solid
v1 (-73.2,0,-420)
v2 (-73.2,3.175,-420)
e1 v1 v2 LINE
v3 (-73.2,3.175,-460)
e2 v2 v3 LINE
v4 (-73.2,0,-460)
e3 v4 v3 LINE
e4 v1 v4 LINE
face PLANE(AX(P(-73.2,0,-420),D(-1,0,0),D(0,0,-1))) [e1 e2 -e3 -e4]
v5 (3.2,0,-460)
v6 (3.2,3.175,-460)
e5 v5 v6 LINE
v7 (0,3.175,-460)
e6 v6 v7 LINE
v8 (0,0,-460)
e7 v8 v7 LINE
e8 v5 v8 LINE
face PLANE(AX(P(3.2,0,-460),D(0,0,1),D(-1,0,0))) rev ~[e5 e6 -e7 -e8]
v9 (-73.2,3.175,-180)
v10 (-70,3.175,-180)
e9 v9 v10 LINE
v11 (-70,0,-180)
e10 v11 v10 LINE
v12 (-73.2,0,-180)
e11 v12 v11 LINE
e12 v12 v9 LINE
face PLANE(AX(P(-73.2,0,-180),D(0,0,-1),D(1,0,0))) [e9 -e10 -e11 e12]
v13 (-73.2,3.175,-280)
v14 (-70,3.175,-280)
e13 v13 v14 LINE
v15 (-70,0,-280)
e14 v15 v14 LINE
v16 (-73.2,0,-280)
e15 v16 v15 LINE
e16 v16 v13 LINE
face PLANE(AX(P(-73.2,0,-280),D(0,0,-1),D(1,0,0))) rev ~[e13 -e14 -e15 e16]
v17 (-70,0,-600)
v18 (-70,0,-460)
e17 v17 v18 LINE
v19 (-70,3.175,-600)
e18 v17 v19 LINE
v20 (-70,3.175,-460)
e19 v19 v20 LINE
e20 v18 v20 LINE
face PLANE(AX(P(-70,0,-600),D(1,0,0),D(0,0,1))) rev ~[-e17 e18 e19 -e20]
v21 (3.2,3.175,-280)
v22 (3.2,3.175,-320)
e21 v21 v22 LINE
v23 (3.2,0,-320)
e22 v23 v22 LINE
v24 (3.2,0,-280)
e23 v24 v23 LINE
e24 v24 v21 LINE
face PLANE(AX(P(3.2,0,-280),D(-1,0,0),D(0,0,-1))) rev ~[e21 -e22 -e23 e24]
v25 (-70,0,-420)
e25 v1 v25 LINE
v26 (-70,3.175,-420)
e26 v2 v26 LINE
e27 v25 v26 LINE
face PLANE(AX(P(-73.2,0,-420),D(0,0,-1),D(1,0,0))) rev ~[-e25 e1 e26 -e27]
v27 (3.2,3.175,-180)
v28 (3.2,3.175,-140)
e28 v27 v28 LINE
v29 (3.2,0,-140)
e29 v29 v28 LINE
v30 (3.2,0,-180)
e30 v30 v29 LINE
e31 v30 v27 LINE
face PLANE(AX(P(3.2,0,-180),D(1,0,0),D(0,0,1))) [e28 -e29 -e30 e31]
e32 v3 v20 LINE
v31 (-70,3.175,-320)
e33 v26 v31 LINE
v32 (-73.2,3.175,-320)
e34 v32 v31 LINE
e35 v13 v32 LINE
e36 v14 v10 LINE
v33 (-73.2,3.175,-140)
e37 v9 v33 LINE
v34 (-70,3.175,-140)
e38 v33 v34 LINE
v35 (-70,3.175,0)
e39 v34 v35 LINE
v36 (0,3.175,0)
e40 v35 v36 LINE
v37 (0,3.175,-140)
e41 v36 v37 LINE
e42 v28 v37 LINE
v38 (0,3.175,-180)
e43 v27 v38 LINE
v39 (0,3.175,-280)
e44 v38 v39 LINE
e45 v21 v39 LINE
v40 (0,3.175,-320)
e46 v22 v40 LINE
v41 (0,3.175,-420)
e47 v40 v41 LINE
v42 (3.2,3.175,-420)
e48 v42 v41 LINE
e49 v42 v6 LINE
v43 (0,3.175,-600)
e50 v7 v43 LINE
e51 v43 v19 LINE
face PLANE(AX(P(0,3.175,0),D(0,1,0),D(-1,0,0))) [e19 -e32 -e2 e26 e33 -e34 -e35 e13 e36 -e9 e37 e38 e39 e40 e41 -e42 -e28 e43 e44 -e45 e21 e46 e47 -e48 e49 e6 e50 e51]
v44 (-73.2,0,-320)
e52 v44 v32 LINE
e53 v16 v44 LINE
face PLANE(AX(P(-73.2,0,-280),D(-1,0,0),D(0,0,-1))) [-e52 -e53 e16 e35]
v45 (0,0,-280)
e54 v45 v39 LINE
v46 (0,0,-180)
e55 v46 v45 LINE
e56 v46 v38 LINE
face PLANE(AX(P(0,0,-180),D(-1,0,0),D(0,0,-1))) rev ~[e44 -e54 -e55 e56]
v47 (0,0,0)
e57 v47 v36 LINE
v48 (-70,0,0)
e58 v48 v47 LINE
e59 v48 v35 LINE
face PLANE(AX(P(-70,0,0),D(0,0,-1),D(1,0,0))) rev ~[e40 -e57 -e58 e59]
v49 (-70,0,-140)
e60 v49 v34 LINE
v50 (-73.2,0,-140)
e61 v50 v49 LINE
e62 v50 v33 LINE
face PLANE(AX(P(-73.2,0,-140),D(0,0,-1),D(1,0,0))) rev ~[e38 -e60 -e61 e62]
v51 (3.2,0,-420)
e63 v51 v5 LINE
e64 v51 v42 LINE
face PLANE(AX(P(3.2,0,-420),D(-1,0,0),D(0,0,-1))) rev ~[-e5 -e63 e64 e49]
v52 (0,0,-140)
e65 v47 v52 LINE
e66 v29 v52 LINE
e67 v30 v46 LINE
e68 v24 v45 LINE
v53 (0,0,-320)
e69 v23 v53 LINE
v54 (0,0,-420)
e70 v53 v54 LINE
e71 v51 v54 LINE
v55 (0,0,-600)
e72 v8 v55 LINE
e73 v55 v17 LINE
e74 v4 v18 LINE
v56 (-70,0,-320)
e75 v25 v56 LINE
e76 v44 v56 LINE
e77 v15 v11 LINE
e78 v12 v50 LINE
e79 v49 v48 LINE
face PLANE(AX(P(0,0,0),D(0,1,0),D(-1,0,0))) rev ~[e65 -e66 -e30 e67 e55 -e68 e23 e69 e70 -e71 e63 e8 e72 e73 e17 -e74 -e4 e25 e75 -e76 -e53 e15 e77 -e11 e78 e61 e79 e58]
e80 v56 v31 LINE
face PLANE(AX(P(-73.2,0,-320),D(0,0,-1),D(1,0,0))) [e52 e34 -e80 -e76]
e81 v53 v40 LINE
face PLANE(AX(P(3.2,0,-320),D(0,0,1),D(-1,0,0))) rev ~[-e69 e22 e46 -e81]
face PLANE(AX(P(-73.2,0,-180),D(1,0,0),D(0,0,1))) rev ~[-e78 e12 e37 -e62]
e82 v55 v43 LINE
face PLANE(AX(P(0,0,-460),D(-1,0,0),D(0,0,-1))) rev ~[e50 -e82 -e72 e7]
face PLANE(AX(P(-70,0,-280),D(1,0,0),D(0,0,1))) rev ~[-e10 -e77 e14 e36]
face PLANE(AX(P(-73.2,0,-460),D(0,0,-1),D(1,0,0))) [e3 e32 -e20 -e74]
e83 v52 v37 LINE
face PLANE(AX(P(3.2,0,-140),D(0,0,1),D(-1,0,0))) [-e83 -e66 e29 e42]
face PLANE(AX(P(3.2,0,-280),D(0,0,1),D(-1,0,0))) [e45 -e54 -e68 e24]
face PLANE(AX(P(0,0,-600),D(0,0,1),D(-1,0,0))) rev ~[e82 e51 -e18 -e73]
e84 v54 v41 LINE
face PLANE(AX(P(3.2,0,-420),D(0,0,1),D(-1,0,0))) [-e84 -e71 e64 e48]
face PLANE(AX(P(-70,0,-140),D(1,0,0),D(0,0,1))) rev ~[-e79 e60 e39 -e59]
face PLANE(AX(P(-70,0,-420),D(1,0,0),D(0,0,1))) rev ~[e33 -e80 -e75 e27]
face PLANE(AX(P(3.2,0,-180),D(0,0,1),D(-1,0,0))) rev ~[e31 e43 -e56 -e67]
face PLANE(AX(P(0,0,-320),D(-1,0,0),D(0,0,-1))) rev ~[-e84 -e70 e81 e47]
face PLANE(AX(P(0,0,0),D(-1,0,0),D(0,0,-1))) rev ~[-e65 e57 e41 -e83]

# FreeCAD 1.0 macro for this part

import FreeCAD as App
import Part
import Sketcher

V = App.Vector
Q = App.Units.Quantity

doc = App.newDocument("Part")
body = doc.addObject("PartDesign::Body", "Body")

# Sketch on XZ plane
sketch1 = doc.addObject("Sketcher::SketchObject", "Sketch")
body.addObject(sketch1)
sketch1.AttachmentSupport = (doc.XZ_Plane, [""])
sketch1.MapMode = "FlatFace"
sketch1.addGeometry([
    Part.LineSegment(V(-70, 0, 0), V(0, 0, 0)),  # 0
    Part.LineSegment(V(0, 0, 0), V(0, -140, 0)),  # 1
    Part.LineSegment(V(0, -140, 0), V(3.2, -140, 0)),  # 2
    Part.LineSegment(V(3.2, -140, 0), V(3.2, -180, 0)),  # 3
    Part.LineSegment(V(3.2, -180, 0), V(0, -180, 0)),  # 4
    Part.LineSegment(V(0, -180, 0), V(0, -280, 0)),  # 5
    Part.LineSegment(V(0, -280, 0), V(3.2, -280, 0)),  # 6
    Part.LineSegment(V(3.2, -280, 0), V(3.2, -320, 0)),  # 7
    Part.LineSegment(V(3.2, -320, 0), V(0, -320, 0)),  # 8
    Part.LineSegment(V(0, -320, 0), V(0, -420, 0)),  # 9
    Part.LineSegment(V(0, -420, 0), V(3.2, -420, 0)),  # 10
    Part.LineSegment(V(3.2, -420, 0), V(3.2, -460, 0)),  # 11
    Part.LineSegment(V(3.2, -460, 0), V(0, -460, 0)),  # 12
    Part.LineSegment(V(0, -460, 0), V(0, -600, 0)),  # 13
    Part.LineSegment(V(0, -600, 0), V(-70, -600, 0)),  # 14
    Part.LineSegment(V(-70, -600, 0), V(-70, -460, 0)),  # 15
    Part.LineSegment(V(-70, -460, 0), V(-73.2, -460, 0)),  # 16
    Part.LineSegment(V(-73.2, -460, 0), V(-73.2, -420, 0)),  # 17
    Part.LineSegment(V(-73.2, -420, 0), V(-70, -420, 0)),  # 18
    Part.LineSegment(V(-70, -420, 0), V(-70, -320, 0)),  # 19
    Part.LineSegment(V(-70, -320, 0), V(-73.2, -320, 0)),  # 20
    Part.LineSegment(V(-73.2, -320, 0), V(-73.2, -280, 0)),  # 21
    Part.LineSegment(V(-73.2, -280, 0), V(-70, -280, 0)),  # 22
    Part.LineSegment(V(-70, -280, 0), V(-70, -180, 0)),  # 23
    Part.LineSegment(V(-70, -180, 0), V(-73.2, -180, 0)),  # 24
    Part.LineSegment(V(-73.2, -180, 0), V(-73.2, -140, 0)),  # 25
    Part.LineSegment(V(-73.2, -140, 0), V(-70, -140, 0)),  # 26
    Part.LineSegment(V(-70, -140, 0), V(-70, 0, 0)),  # 27
], False)
sketch1.addConstraint([
    Sketcher.Constraint("Coincident", 0, 2, 1, 1),
    Sketcher.Constraint("Coincident", 1, 2, 2, 1),
    Sketcher.Constraint("Coincident", 2, 2, 3, 1),
    Sketcher.Constraint("Coincident", 3, 2, 4, 1),
    Sketcher.Constraint("Coincident", 4, 2, 5, 1),
    Sketcher.Constraint("Coincident", 5, 2, 6, 1),
    Sketcher.Constraint("Coincident", 6, 2, 7, 1),
    Sketcher.Constraint("Coincident", 7, 2, 8, 1),
    Sketcher.Constraint("Coincident", 8, 2, 9, 1),
    Sketcher.Constraint("Coincident", 9, 2, 10, 1),
    Sketcher.Constraint("Coincident", 10, 2, 11, 1),
    Sketcher.Constraint("Coincident", 11, 2, 12, 1),
    Sketcher.Constraint("Coincident", 12, 2, 13, 1),
    Sketcher.Constraint("Coincident", 13, 2, 14, 1),
    Sketcher.Constraint("Coincident", 14, 2, 15, 1),
    Sketcher.Constraint("Coincident", 15, 2, 16, 1),
    Sketcher.Constraint("Coincident", 16, 2, 17, 1),
    Sketcher.Constraint("Coincident", 17, 2, 18, 1),
    Sketcher.Constraint("Coincident", 18, 2, 19, 1),
    Sketcher.Constraint("Coincident", 19, 2, 20, 1),
    Sketcher.Constraint("Coincident", 20, 2, 21, 1),
    Sketcher.Constraint("Coincident", 21, 2, 22, 1),
    Sketcher.Constraint("Coincident", 22, 2, 23, 1),
    Sketcher.Constraint("Coincident", 23, 2, 24, 1),
    Sketcher.Constraint("Coincident", 24, 2, 25, 1),
    Sketcher.Constraint("Coincident", 25, 2, 26, 1),
    Sketcher.Constraint("Coincident", 26, 2, 27, 1),
    Sketcher.Constraint("Coincident", 27, 2, 0, 1),
    Sketcher.Constraint("Horizontal", 0),
    Sketcher.Constraint("Vertical", 1),
    Sketcher.Constraint("Horizontal", 2),
    Sketcher.Constraint("Vertical", 3),
    Sketcher.Constraint("Horizontal", 4),
    Sketcher.Constraint("Vertical", 5),
    Sketcher.Constraint("Horizontal", 6),
    Sketcher.Constraint("Vertical", 7),
    Sketcher.Constraint("Horizontal", 8),
    Sketcher.Constraint("Vertical", 9),
    Sketcher.Constraint("Horizontal", 10),
    Sketcher.Constraint("Vertical", 11),
    Sketcher.Constraint("Horizontal", 12),
    Sketcher.Constraint("Vertical", 13),
    Sketcher.Constraint("Horizontal", 14),
    Sketcher.Constraint("Vertical", 15),
    Sketcher.Constraint("Horizontal", 16),
    Sketcher.Constraint("Vertical", 17),
    Sketcher.Constraint("Horizontal", 18),
    Sketcher.Constraint("Vertical", 19),
    Sketcher.Constraint("Horizontal", 20),
    Sketcher.Constraint("Vertical", 21),
    Sketcher.Constraint("Horizontal", 22),
    Sketcher.Constraint("Vertical", 23),
    Sketcher.Constraint("Horizontal", 24),
    Sketcher.Constraint("Vertical", 25),
    Sketcher.Constraint("Horizontal", 26),
    Sketcher.Constraint("Vertical", 27),
    Sketcher.Constraint("Coincident", 0, 2, -1, 1),
    Sketcher.Constraint("PointOnObject", 4, 2, -2),
    Sketcher.Constraint("PointOnObject", 8, 2, -2),
    Sketcher.Constraint("PointOnObject", 12, 2, -2),
    Sketcher.Constraint("Horizontal", 12, 2, 15, 2),
    Sketcher.Constraint("Horizontal", 10, 2, 17, 2),
    Sketcher.Constraint("Horizontal", 8, 2, 19, 2),
    Sketcher.Constraint("Horizontal", 6, 2, 21, 2),
    Sketcher.Constraint("Horizontal", 4, 2, 23, 2),
    Sketcher.Constraint("Horizontal", 2, 2, 25, 2),
    Sketcher.Constraint("Vertical", 3, 2, 6, 2),
    Sketcher.Constraint("Vertical", 7, 2, 10, 2),
    Sketcher.Constraint("Vertical", 15, 2, 18, 2),
    Sketcher.Constraint("Vertical", 17, 2, 20, 2),
    Sketcher.Constraint("Vertical", 19, 2, 22, 2),
    Sketcher.Constraint("Vertical", 21, 2, 24, 2),
    Sketcher.Constraint("Vertical", 23, 2, 26, 2),
    Sketcher.Constraint("Equal", 12, 16),
    Sketcher.Constraint("Equal", 3, 7),
    Sketcher.Constraint("Equal", 5, 9),
    Sketcher.Constraint("Equal", 7, 11),
    Sketcher.Constraint("Equal", 1, 13),
    Sketcher.Constraint("DistanceY", 5, 2, 5, 1, Q("3.937 in")),
    Sketcher.Constraint("DistanceX", 0, 1, 0, 2, Q("2.7559 in")),
    Sketcher.Constraint("DistanceY", 3, 2, 3, 1, Q("1.5748 in")),
    Sketcher.Constraint("DistanceY", 13, 2, -1, 1, 600.0),
    Sketcher.Constraint("DistanceX", 2, 1, 2, 2, 3.2),
])
pad1 = doc.addObject("PartDesign::Pad", "Pad")
body.addObject(pad1)
pad1.Profile = sketch1
pad1.Length = Q("0.125 in")
pad1.Reversed = True

doc.recompute()
